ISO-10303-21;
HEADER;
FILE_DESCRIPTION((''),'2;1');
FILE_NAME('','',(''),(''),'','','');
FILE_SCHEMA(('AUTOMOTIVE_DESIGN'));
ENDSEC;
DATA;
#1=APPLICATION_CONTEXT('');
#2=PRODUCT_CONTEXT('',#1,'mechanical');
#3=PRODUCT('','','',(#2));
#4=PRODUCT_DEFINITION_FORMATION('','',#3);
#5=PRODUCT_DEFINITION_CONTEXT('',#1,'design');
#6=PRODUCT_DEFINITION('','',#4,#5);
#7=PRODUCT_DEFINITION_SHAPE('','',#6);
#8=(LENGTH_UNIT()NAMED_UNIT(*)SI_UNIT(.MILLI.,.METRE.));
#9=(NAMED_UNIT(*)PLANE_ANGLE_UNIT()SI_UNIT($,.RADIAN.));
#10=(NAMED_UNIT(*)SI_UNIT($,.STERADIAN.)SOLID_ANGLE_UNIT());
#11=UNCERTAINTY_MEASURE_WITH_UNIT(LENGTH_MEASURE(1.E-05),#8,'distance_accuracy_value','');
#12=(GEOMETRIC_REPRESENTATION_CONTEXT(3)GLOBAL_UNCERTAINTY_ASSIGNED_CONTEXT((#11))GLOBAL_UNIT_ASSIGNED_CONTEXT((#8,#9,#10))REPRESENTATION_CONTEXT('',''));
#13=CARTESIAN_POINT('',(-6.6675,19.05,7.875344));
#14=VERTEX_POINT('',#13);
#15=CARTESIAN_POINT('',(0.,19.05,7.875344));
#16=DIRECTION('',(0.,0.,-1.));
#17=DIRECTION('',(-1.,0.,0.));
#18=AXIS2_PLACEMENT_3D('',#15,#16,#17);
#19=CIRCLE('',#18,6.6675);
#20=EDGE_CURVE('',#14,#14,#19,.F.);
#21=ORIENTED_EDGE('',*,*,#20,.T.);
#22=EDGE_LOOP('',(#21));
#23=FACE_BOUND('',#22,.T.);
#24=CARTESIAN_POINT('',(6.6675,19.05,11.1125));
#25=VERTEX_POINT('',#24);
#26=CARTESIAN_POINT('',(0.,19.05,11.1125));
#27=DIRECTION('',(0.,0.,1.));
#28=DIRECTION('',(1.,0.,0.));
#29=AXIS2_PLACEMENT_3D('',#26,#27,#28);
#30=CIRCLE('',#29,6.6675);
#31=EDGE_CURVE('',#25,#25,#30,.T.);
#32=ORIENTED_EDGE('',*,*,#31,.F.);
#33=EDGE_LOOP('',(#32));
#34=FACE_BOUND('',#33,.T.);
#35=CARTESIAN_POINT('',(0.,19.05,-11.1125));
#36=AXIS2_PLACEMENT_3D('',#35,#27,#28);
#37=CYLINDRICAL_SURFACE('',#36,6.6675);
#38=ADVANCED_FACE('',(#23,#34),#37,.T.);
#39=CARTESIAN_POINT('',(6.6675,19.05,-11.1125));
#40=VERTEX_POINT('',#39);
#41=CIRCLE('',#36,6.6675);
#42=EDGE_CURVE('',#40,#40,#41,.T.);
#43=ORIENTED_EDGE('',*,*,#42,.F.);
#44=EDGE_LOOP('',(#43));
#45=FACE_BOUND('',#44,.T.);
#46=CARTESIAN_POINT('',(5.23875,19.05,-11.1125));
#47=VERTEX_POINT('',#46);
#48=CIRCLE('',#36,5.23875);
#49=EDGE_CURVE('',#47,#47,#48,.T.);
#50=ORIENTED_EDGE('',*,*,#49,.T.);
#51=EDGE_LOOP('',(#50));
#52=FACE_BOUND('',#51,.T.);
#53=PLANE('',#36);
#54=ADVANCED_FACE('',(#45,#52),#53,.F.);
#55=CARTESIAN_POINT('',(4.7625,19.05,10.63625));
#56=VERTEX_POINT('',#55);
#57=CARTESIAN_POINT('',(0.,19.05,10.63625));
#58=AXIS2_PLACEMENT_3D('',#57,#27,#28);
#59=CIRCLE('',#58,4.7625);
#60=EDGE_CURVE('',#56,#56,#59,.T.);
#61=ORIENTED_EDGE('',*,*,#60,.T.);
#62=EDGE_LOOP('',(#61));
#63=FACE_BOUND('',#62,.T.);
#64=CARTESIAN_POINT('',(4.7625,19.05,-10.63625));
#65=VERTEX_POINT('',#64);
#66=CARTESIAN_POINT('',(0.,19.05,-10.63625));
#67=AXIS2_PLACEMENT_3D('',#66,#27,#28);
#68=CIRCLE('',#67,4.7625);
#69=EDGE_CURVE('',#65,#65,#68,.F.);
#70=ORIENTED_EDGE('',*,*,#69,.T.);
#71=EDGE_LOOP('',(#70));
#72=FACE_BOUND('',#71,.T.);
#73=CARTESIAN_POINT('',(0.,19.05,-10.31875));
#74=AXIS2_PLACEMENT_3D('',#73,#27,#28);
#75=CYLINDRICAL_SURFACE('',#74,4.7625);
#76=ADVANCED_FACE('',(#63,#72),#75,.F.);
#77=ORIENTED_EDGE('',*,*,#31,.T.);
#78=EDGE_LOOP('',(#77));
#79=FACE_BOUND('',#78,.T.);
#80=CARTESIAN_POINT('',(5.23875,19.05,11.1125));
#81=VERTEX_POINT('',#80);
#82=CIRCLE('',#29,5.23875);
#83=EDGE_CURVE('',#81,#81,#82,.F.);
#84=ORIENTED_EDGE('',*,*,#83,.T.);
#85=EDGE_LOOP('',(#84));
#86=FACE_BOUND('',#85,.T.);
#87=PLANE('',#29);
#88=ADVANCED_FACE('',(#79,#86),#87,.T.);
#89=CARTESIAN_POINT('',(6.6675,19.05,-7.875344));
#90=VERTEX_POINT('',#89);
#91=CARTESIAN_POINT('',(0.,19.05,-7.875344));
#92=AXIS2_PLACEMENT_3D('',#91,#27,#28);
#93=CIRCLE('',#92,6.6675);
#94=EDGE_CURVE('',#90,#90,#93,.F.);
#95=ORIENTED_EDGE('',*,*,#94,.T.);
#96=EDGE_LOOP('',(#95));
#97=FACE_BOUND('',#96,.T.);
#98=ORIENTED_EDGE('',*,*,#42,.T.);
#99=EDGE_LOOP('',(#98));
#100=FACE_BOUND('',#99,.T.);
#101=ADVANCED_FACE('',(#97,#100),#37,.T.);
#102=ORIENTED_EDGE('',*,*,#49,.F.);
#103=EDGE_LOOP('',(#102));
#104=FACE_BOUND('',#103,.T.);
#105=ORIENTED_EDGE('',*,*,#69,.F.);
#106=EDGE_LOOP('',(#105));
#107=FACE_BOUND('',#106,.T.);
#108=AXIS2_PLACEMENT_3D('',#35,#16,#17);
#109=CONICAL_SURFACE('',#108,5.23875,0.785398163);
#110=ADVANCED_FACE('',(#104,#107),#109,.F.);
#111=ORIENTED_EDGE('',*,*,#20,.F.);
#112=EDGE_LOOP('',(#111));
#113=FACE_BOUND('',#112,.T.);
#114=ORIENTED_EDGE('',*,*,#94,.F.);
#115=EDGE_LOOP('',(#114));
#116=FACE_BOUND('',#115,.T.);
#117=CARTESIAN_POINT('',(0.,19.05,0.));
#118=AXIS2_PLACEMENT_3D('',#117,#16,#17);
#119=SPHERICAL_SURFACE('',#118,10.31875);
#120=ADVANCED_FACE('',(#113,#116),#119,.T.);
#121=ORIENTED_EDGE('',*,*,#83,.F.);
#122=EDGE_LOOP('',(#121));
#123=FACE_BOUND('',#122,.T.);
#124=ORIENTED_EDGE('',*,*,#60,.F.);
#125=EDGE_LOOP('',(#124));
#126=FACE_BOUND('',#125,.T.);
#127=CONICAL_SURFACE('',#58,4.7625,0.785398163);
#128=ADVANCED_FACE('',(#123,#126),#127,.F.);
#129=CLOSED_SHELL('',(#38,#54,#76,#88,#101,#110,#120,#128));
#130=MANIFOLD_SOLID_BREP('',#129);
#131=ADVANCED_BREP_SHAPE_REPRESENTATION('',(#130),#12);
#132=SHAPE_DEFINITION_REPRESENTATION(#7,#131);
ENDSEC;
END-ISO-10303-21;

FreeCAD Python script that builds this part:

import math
import FreeCAD as App
import Part
import Sketcher
Q = App.Units.Quantity


def edges_at(feature, points):
    """Names of the edges that pass closest to the given points."""
    edges = feature.Shape.Edges
    near = lambda p: min(range(len(edges)), key=lambda i: edges[i].distToShape(Part.Vertex(*p))[0])
    return sorted({f"Edge{near(p) + 1}" for p in points})

doc = App.newDocument("Part")
params = doc.addObject("Spreadsheet::Sheet", "Params")
for row, (alias, value) in enumerate([
    ("sketch1_radius", "0.40625 in"),
    ("revolution_angle", "360 deg"),
    ("sketch2_diameter", "0.375 in"),
    ("sketch3_diameter", "0.525 in"),
    ("sketch3_diameter2", "0.375 in"),
    ("pad1_length", "0.4375 in"),
    ("pad1_length2", "0.4375 in"),
    ("chamfer_size", "0.47625 mm"),
], start=1):
    params.set(f"A{row}", alias)
    params.set(f"B{row}", "=" + value)
    params.setAlias(f"B{row}", alias)

body = doc.addObject("PartDesign::Body", "Body")

# Sketch on XY plane
sketch1 = body.newObject("Sketcher::SketchObject", "Sketch")
sketch1.AttachmentSupport = (doc.getObject("XY_Plane"), [""])
sketch1.MapMode = "FlatFace"
sketch1.addGeometry([
    Part.LineSegment(App.Vector(0, 29, 0), App.Vector(0, 9, 0)),
    Part.ArcOfCircle(Part.Circle(App.Vector(0, 19, 0), App.Vector(0, 0, 1), 10), math.radians(-90), math.radians(90)),
], False)
sketch1.addConstraint([
    Sketcher.Constraint("Coincident", 0, 1, 1, 2),
    Sketcher.Constraint("Coincident", 1, 1, 0, 2),
    Sketcher.Constraint("Vertical", 0),
    Sketcher.Constraint("PointOnObject", 1, 3, -2),
    Sketcher.Constraint("PointOnObject", 0, 1, -2),
    Sketcher.Constraint("Radius", 1, Q("0.40625 in")),
    Sketcher.Constraint("DistanceY", -1, 1, 1, 3, Q("0.75 in")),
])
sketch1.setExpression("Constraints[5]", "Params.sketch1_radius")
revolution = body.newObject("PartDesign::Revolution", "Revolution")
revolution.Profile = sketch1
revolution.ReferenceAxis = (sketch1, ["V_Axis"])
revolution.setExpression("Angle", "Params.revolution_angle")

# Sketch on XY plane
sketch2 = body.newObject("Sketcher::SketchObject", "Sketch001")
sketch2.AttachmentSupport = (doc.getObject("XY_Plane"), [""])
sketch2.MapMode = "FlatFace"
sketch2.addGeometry(Part.Circle(App.Vector(0, 19.1, 0), App.Vector(0, 0, 1), 4.8), False)
sketch2.addConstraint([
    Sketcher.Constraint("PointOnObject", 0, 3, -2),
    Sketcher.Constraint("Diameter", 0, Q("0.375 in")),
    Sketcher.Constraint("DistanceY", -1, 1, 0, 3, Q("0.75 in")),
])
sketch2.setExpression("Constraints[1]", "Params.sketch2_diameter")
pocket1 = body.newObject("PartDesign::Pocket", "Pocket")
pocket1.Profile = sketch2
pocket1.Type = "ThroughAll"
pocket1.Midplane = True

# Sketch on XY plane
sketch3 = body.newObject("Sketcher::SketchObject", "Sketch002")
sketch3.AttachmentSupport = (doc.getObject("XY_Plane"), [""])
sketch3.MapMode = "FlatFace"
sketch3.addGeometry([
    Part.Circle(App.Vector(0, 19.1, 0), App.Vector(0, 0, 1), 6.7),
    Part.Circle(App.Vector(0, 19.1, 0), App.Vector(0, 0, 1), 4.8),
], False)
sketch3.addConstraint([
    Sketcher.Constraint("Coincident", 1, 3, 0, 3),
    Sketcher.Constraint("PointOnObject", 0, 3, -2),
    Sketcher.Constraint("Diameter", 0, Q("0.525 in")),
    Sketcher.Constraint("Diameter", 1, Q("0.375 in")),
    Sketcher.Constraint("DistanceY", -1, 1, 0, 3, Q("0.75 in")),
])
sketch3.setExpression("Constraints[2]", "Params.sketch3_diameter")
sketch3.setExpression("Constraints[3]", "Params.sketch3_diameter2")
pad1 = body.newObject("PartDesign::Pad", "Pad")
pad1.Profile = sketch3
pad1.Type = "TwoLengths"
pad1.setExpression("Length", "Params.pad1_length")
pad1.setExpression("Length2", "Params.pad1_length2")
doc.recompute()

chamfer = body.newObject("PartDesign::Chamfer", "Chamfer")
chamfer.Base = (pad1, edges_at(pad1, [(-4.763, 19.05, 11.113), (-4.763, 19.05, -11.113)]))
chamfer.setExpression("Size", "Params.chamfer_size")

doc.recompute()
